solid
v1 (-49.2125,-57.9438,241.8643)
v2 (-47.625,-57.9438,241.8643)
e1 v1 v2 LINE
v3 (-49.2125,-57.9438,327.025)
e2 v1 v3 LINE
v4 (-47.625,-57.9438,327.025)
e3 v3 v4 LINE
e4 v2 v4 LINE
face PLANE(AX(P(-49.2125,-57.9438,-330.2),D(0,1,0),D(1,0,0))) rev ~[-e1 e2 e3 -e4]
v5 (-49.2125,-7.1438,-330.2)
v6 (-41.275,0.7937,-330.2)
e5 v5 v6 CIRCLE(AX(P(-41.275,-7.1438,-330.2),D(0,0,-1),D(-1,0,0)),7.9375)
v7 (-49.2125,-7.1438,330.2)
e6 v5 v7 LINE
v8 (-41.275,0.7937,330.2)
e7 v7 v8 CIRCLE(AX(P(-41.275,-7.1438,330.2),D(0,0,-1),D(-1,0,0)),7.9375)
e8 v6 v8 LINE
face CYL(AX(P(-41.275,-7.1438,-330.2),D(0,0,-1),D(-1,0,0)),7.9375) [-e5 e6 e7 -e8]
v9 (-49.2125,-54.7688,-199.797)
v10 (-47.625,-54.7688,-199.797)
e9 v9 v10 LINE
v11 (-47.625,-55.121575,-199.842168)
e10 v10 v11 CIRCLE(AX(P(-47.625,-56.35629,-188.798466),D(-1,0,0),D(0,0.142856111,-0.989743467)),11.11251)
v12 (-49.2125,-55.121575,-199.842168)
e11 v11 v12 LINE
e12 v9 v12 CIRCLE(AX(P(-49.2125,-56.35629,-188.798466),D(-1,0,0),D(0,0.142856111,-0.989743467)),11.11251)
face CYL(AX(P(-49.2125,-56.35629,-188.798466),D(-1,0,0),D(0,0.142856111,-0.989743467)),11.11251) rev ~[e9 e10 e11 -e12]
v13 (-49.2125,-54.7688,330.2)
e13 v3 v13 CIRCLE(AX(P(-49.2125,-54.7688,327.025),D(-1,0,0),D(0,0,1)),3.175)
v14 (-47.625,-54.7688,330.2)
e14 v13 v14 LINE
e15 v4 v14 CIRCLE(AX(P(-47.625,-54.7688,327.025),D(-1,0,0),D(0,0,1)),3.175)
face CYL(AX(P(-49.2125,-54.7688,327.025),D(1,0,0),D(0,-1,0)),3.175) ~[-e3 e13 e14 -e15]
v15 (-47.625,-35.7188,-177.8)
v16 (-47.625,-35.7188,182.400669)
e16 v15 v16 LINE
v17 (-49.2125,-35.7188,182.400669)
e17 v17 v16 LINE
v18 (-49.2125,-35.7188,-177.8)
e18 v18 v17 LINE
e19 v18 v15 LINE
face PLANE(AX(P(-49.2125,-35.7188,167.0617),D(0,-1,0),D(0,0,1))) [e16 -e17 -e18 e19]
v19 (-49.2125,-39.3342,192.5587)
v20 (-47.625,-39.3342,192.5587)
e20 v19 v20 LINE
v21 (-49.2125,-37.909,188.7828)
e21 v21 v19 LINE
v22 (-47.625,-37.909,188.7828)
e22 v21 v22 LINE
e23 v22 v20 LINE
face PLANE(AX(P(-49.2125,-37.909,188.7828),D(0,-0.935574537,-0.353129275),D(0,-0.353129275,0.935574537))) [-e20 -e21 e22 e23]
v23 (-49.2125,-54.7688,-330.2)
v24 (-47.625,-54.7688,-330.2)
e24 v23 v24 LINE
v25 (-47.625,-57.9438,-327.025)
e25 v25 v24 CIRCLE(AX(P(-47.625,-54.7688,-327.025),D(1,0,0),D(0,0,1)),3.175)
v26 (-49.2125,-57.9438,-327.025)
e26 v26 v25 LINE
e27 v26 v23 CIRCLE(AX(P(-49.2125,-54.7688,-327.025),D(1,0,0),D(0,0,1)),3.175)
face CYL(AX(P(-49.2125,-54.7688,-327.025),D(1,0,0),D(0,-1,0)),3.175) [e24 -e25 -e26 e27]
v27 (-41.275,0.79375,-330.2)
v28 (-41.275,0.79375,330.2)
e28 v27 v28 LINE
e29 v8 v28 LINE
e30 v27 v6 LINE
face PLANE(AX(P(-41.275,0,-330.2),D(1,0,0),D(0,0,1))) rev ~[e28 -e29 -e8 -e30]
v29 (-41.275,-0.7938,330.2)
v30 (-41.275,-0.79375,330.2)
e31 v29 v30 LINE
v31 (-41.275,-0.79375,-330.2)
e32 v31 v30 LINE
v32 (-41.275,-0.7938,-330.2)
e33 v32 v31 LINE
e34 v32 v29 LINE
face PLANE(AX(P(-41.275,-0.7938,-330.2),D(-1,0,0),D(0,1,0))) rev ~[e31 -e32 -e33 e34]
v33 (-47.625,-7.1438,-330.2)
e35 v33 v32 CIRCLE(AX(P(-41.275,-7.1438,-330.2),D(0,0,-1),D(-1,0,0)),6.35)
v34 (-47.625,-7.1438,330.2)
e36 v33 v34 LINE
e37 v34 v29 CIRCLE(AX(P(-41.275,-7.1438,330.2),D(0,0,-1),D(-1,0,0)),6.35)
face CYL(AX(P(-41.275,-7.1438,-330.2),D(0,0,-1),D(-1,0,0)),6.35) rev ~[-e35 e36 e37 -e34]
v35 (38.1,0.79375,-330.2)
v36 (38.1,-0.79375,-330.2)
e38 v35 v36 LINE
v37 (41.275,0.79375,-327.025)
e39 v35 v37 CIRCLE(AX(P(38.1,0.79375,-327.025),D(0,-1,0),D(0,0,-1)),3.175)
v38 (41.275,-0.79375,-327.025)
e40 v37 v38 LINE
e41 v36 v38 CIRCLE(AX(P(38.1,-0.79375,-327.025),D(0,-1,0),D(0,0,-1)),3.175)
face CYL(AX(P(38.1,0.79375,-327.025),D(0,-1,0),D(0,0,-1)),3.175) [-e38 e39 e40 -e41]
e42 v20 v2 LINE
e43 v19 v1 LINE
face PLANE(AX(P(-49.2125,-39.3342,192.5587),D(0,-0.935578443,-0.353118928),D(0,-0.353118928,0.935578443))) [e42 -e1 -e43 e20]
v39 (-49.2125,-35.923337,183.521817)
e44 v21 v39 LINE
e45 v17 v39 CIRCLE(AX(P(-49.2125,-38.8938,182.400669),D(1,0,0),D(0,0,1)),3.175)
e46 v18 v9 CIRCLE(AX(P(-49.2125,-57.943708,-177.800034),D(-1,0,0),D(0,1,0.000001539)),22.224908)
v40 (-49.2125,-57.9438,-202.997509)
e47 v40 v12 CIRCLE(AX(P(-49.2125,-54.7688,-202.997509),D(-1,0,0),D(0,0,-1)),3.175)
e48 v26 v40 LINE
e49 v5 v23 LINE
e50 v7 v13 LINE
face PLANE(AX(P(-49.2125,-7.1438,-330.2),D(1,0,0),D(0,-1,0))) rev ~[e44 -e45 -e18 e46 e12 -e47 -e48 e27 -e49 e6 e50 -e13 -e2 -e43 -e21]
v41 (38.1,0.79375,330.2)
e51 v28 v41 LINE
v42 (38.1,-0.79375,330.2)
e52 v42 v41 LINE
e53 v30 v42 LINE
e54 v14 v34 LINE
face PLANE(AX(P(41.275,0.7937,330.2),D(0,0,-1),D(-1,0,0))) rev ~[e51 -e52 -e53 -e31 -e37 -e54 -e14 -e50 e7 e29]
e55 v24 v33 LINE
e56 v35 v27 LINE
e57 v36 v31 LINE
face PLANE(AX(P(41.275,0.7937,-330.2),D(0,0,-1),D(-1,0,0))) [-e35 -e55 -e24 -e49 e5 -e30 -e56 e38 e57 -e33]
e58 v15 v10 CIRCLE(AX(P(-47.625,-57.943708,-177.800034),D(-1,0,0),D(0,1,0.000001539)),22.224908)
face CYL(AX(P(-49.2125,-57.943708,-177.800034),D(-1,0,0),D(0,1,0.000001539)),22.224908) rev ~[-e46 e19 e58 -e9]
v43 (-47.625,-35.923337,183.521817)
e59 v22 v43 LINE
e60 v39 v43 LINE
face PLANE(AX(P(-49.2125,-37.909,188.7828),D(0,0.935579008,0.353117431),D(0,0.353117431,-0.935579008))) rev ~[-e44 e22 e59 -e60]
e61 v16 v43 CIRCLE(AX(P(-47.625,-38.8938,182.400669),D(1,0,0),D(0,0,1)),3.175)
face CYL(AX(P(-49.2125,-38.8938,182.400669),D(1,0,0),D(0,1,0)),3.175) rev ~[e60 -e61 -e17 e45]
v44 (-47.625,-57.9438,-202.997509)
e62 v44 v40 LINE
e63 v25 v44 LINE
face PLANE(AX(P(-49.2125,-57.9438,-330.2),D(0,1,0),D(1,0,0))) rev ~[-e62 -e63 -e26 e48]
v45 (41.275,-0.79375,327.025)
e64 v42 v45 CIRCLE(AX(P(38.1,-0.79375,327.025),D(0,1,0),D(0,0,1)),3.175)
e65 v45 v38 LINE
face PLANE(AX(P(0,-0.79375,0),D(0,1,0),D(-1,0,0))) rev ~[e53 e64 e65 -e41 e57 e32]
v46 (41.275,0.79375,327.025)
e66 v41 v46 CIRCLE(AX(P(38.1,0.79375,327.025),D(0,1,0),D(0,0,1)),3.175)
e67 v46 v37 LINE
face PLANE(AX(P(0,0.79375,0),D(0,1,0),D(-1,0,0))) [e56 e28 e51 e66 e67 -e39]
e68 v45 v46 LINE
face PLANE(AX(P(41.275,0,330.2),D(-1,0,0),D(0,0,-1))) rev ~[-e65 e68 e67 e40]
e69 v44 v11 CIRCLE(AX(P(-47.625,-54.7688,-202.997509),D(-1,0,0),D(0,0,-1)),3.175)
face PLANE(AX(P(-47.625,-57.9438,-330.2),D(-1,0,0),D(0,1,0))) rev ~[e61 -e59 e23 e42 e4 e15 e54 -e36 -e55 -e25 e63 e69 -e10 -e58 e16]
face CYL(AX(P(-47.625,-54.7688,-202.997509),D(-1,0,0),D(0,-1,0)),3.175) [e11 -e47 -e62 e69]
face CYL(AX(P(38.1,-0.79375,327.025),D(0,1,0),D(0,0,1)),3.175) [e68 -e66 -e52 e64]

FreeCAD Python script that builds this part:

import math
import FreeCAD as App
import Part
import Sketcher
from FreeCAD import Vector
Q = App.Units.Quantity


def edges_at(feature, points):
    """Names of the edges that pass closest to the given points."""
    edges = feature.Shape.Edges
    near = lambda p: min(range(len(edges)), key=lambda i: edges[i].distToShape(Part.Vertex(*p))[0])
    return sorted({f"Edge{near(p) + 1}" for p in points})


def add_polygon(sketch, points):
    """Adds a closed chain of lines whose ends are joined by coincident constraints."""
    first, n = sketch.GeometryCount, len(points)
    for a, b in zip(points, points[1:] + points[:1]):
        sketch.addGeometry(Part.LineSegment(App.Vector(*a, 0), App.Vector(*b, 0)), False)
    for i in range(n):
        sketch.addConstraint(Sketcher.Constraint("Coincident", first + i, 2, first + (i + 1) % n, 1))

doc = App.newDocument("Part")
body = doc.addObject("PartDesign::Body", "Body")

# Sketch on XZ plane
sketch1 = doc.addObject("Sketcher::SketchObject", "Sketch")
body.addObject(sketch1)
sketch1.AttachmentSupport = (doc.XZ_Plane, [""])
sketch1.MapMode = "FlatFace"
add_polygon(sketch1, [(-41, -330), (-41, 330), (41, 330), (41, -330)])  # lines 0-3
sketch1.addConstraint([
    Sketcher.Constraint("Vertical", 0),
    Sketcher.Constraint("Horizontal", 1),
    Sketcher.Constraint("Vertical", 2),
    Sketcher.Constraint("Horizontal", 3),
    Sketcher.Constraint("Symmetric", 0, 2, 2, 2, -1, 1),
    Sketcher.Constraint("DistanceY", 0, 1, 0, 2, Q("26 in")),
    Sketcher.Constraint("DistanceX", 1, 1, 1, 2, Q("3.25 in")),
])
pad1 = doc.addObject("PartDesign::Pad", "Pad")
body.addObject(pad1)
pad1.Profile = sketch1
pad1.Length = Q("0.0625 in")
pad1.Midplane = True

# Sketch on XY plane
sketch2 = doc.addObject("Sketcher::SketchObject", "Sketch001")
body.addObject(sketch2)
sketch2.AttachmentSupport = (doc.XY_Plane, [""])
sketch2.MapMode = "FlatFace"
sketch2.AttachmentOffset = App.Placement(Vector(0, 0, -13 * 25.4), App.Rotation())
sketch2.addGeometry([
    Part.LineSegment(Vector(-49.2, -57.9, 0), Vector(-49.2, -7.1, 0)),  # 0
    Part.ArcOfCircle(Part.Circle(Vector(-41.3, -7.1, 0), Vector(0, 0, 1), 7.9), math.radians(90), math.radians(180)),  # 1
    Part.LineSegment(Vector(-41.3, 0.8, 0), Vector(-41.3, -0.8, 0)),  # 2
    Part.ArcOfCircle(Part.Circle(Vector(-41.3, -7.1, 0), Vector(0, 0, 1), 6.4), math.radians(90), math.radians(180)),  # 3
    Part.LineSegment(Vector(-47.6, -7.1, 0), Vector(-47.6, -57.9, 0)),  # 4
    Part.LineSegment(Vector(-47.6, -57.9, 0), Vector(-49.2, -57.9, 0)),  # 5
], False)
sketch2.addConstraint([
    Sketcher.Constraint("Tangent", 0, 2, 1, 2),
    Sketcher.Constraint("Coincident", 1, 1, 2, 1),
    Sketcher.Constraint("Coincident", 2, 2, 3, 1),
    Sketcher.Constraint("Tangent", 3, 2, 4, 1),
    Sketcher.Constraint("Coincident", 4, 2, 5, 1),
    Sketcher.Constraint("Coincident", 5, 2, 0, 1),
    Sketcher.Constraint("Vertical", 0),
    Sketcher.Constraint("Vertical", 2),
    Sketcher.Constraint("Vertical", 4),
    Sketcher.Constraint("Horizontal", 5),
    Sketcher.Constraint("Coincident", 3, 3, 1, 3),
    Sketcher.Constraint("Vertical", 3, 3, 1, 1),
    Sketcher.Constraint("Radius", 3, Q("0.25 in")),
    Sketcher.Constraint("DistanceX", 5, 2, 5, 1, Q("0.0625 in")),
    Sketcher.Constraint("DistanceY", 0, 1, 0, 2, Q("2 in")),
    Sketcher.Constraint("DistanceX", 1, 3, -1, 1, Q("1.625 in")),
    Sketcher.Constraint("DistanceY", 1, 3, -1, 1, Q("0.281252 in")),
])
pad2 = doc.addObject("PartDesign::Pad", "Pad001")
body.addObject(pad2)
pad2.Profile = sketch2
pad2.Length = Q("26 in")

# Sketch on YZ plane
sketch3 = doc.addObject("Sketcher::SketchObject", "Sketch002")
body.addObject(sketch3)
sketch3.AttachmentSupport = (doc.YZ_Plane, [""])
sketch3.MapMode = "FlatFace"
sketch3.AttachmentOffset = App.Placement(Vector(0, 0, -1.9375 * 25.4), App.Rotation())
sketch3.addGeometry([
    Part.LineSegment(Vector(-36, 178, 0), Vector(-36, -178, 0)),  # 0
    Part.ArcOfCircle(Part.Circle(Vector(-58, -178, 0), Vector(0, 0, 1), 22), math.radians(-82), math.radians(0)),  # 1
    Part.ArcOfCircle(Part.Circle(Vector(-56, -189, 0), Vector(0, 0, 1), 11), math.radians(180), math.radians(278)),  # 2
    Part.LineSegment(Vector(-67, -189, 0), Vector(-67, 189, 0)),  # 3
    Part.ArcOfCircle(Part.Circle(Vector(-56, 189, 0), Vector(0, 0, 1), 11), math.radians(82), math.radians(180)),  # 4
    Part.ArcOfCircle(Part.Circle(Vector(-58, 178, 0), Vector(0, 0, 1), 22), math.radians(0), math.radians(82)),  # 5
], False)
sketch3.addConstraint([
    Sketcher.Constraint("Tangent", 0, 2, 1, 2),
    Sketcher.Constraint("Tangent", 1, 1, 2, 2),
    Sketcher.Constraint("Tangent", 2, 1, 3, 1),
    Sketcher.Constraint("Tangent", 3, 2, 4, 2),
    Sketcher.Constraint("Tangent", 4, 1, 5, 2),
    Sketcher.Constraint("Tangent", 5, 1, 0, 1),
    Sketcher.Constraint("Vertical", 0),
    Sketcher.Constraint("Vertical", 3),
    Sketcher.Constraint("Equal", 2, 4),
    Sketcher.Constraint("Equal", 1, 5),
    Sketcher.Constraint("DistanceY", 0, 2, 0, 1, Q("14 in")),
    Sketcher.Constraint("DistanceY", 1, 3, -1, 1, Q("7 in")),
    Sketcher.Constraint("Radius", 1, Q("0.875 in")),
    Sketcher.Constraint("Radius", 2, Q("0.4375 in")),
    Sketcher.Constraint("DistanceX", 2, 1, 1, 3, Q("0.375 in")),
    Sketcher.Constraint("DistanceX", 1, 3, -1, 1, Q("2.281252 in")),
])
pocket1 = doc.addObject("PartDesign::Pocket", "Pocket")
body.addObject(pocket1)
pocket1.Profile = sketch3
pocket1.Length = Q("0.0625 in")
pocket1.Reversed = True

# Sketch on YZ plane
sketch4 = doc.addObject("Sketcher::SketchObject", "Sketch003")
body.addObject(sketch4)
sketch4.AttachmentSupport = (doc.YZ_Plane, [""])
sketch4.MapMode = "FlatFace"
sketch4.AttachmentOffset = App.Placement(Vector(0, 0, -1.9375 * 25.4), App.Rotation())
sketch4.addGeometry([
    Part.LineSegment(Vector(-39.3342, 192.5587, 0), Vector(-37.909, 188.7828, 0)),  # 0
    Part.LineSegment(Vector(-37.909, 188.7828, 0), Vector(-35.7188, 182.9799, 0)),  # 1
    Part.LineSegment(Vector(-35.7188, 182.9799, 0), Vector(-35.7188, 177.8, 0)),  # 2
    Part.ArcOfCircle(Part.Circle(Vector(-57.9438, 177.8, 0), Vector(0, 0, 1), 22.224955), math.radians(0), math.radians(81.786773)),  # 3
    Part.ArcOfCircle(Part.Circle(Vector(-56.3563, 188.7985, 0), Vector(0, 0, 1), 11.112478), math.radians(81.786773), math.radians(98.213227)),  # 4
    Part.LineSegment(Vector(-57.9438, 199.797, 0), Vector(-57.9438, 241.8643, 0)),  # 5
    Part.LineSegment(Vector(-57.9438, 241.8643, 0), Vector(-39.3342, 192.5587, 0)),  # 6
], False)
sketch4.addConstraint([
    Sketcher.Constraint("Coincident", 0, 2, 1, 1),
    Sketcher.Constraint("Coincident", 1, 2, 2, 1),
    Sketcher.Constraint("Coincident", 2, 2, 3, 1),
    Sketcher.Constraint("Coincident", 3, 2, 4, 1),
    Sketcher.Constraint("Coincident", 4, 2, 5, 1),
    Sketcher.Constraint("Coincident", 5, 2, 6, 1),
    Sketcher.Constraint("Coincident", 6, 2, 0, 1),
    Sketcher.Constraint("Vertical", 2),
    Sketcher.Constraint("Vertical", 5),
    Sketcher.Constraint("DistanceY", -1, 1, 3, 3, Q("7 in")),
    Sketcher.Constraint("DistanceY", -1, 1, 2, 2, Q("7 in")),
    Sketcher.Constraint("Radius", 3, Q("0.875 in")),
    Sketcher.Constraint("Radius", 4, Q("0.4375 in")),
    Sketcher.Constraint("DistanceX", 3, 2, 1, 2, Q("0.75 in")),
    Sketcher.Constraint("DistanceY", 5, 1, 5, 2, Q("1.6562 in")),
    Sketcher.Constraint("DistanceX", 3, 3, -1, 1, Q("2.281252 in")),
    Sketcher.Constraint("DistanceX", 4, 3, -1, 1, Q("2.218752 in")),
    Sketcher.Constraint("DistanceX", 4, 2, -1, 1, Q("2.281252 in")),
    Sketcher.Constraint("Distance", 0, Q("0.1589 in")),
    Sketcher.Constraint("Distance", 1, Q("0.2442 in")),
    Sketcher.Constraint("DistanceY", 2, 2, 2, 1, Q("5.18 mm")),
    Sketcher.Constraint("DistanceY", -1, 1, 0, 2, Q("7.4324 in")),
    Sketcher.Constraint("DistanceX", 6, 2, -1, 1, Q("1.5486 in")),
])
pocket2 = doc.addObject("PartDesign::Pocket", "Pocket001")
body.addObject(pocket2)
pocket2.Profile = sketch4
pocket2.Length = Q("0.0625 in")
pocket2.Reversed = True
doc.recompute()

fillet = doc.addObject("PartDesign::Fillet", "Fillet")
body.addObject(fillet)
fillet.Base = (pocket2, edges_at(pocket2, [(-48.419, -57.944, -199.797), (-48.419, -35.719, 182.98)]))
fillet.Radius = Q("0.125 in")
doc.recompute()

fillet2 = doc.addObject("PartDesign::Fillet", "Fillet001")
body.addObject(fillet2)
fillet2.Base = (fillet, edges_at(fillet, [
    (-48.419, -57.944, -330.2),
    (41.275, 0, -330.2),
    (-48.419, -57.944, 330.2),
    (41.275, 0, 330.2),
]))
fillet2.Radius = Q("0.125 in")

doc.recompute()
